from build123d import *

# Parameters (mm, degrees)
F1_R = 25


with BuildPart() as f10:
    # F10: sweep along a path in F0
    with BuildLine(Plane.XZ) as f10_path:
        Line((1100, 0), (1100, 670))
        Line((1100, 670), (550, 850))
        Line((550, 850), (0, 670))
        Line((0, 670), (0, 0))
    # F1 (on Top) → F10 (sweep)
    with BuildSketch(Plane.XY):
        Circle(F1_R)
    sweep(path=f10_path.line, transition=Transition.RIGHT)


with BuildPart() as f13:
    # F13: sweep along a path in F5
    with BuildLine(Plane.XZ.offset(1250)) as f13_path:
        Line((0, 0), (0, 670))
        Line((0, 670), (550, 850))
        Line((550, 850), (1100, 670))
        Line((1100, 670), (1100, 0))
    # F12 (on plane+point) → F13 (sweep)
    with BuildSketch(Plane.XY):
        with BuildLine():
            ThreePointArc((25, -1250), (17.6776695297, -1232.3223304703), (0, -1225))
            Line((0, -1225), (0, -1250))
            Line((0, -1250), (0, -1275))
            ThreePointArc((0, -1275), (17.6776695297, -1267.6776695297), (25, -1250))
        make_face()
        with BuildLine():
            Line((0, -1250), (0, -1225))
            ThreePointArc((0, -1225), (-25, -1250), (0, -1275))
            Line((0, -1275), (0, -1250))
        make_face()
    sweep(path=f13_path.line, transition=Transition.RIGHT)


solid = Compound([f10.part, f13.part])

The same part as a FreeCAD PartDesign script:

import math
import FreeCAD as App
import Part
import Sketcher

V = App.Vector
Q = App.Units.Quantity

doc = App.newDocument("Part")
params = doc.addObject("Spreadsheet::Sheet", "Params")
for row, (alias, value) in enumerate([
    ("sketch1_diameter", "50 mm"),
    ("sketch2_height", "670 mm"),
    ("sketch3_radius", "25 mm"),
    ("sketch4_height", "670 mm"),
], start=1):
    params.set(f"A{row}", alias)
    params.set(f"B{row}", "=" + value)
    params.setAlias(f"B{row}", alias)

body = doc.addObject("PartDesign::Body", "Body")

sketch1 = body.newObject("Sketcher::SketchObject", "Sketch")
sketch1.AttachmentSupport = (doc.getObject("XY_Plane"), [""])
sketch1.MapMode = "FlatFace"
sketch1.addGeometry(Part.Circle(V(0, 0, 0), V(0, 0, 1), 25), False)
sketch1.addConstraint(Sketcher.Constraint("Coincident", 0, 3, -1, 1))
sketch1.addConstraint(Sketcher.Constraint("Diameter", 0, Q("50 mm")))
sketch1.setExpression("Constraints[1]", "Params.sketch1_diameter")

sketch2 = body.newObject("Sketcher::SketchObject", "Sketch001")
sketch2.AttachmentSupport = (doc.getObject("XZ_Plane"), [""])
sketch2.MapMode = "FlatFace"
sketch2.addGeometry(Part.LineSegment(V(1100, 0, 0), V(1100, 670, 0)), False)
sketch2.addGeometry(Part.LineSegment(V(1100, 670, 0), V(550, 850, 0)), False)
sketch2.addGeometry(Part.LineSegment(V(550, 850, 0), V(0, 670, 0)), False)
sketch2.addGeometry(Part.LineSegment(V(0, 670, 0), V(0, 0, 0)), False)
sketch2.addConstraint(Sketcher.Constraint("Coincident", 0, 2, 1, 1))
sketch2.addConstraint(Sketcher.Constraint("Coincident", 1, 2, 2, 1))
sketch2.addConstraint(Sketcher.Constraint("Coincident", 2, 2, 3, 1))
sketch2.addConstraint(Sketcher.Constraint("Vertical", 0))
sketch2.addConstraint(Sketcher.Constraint("Vertical", 3))
sketch2.addConstraint(Sketcher.Constraint("Coincident", 3, 2, -1, 1))
sketch2.addConstraint(Sketcher.Constraint("PointOnObject", 0, 1, -1))
sketch2.addConstraint(Sketcher.Constraint("Horizontal", 0, 2, 2, 2))
sketch2.addConstraint(Sketcher.Constraint("Equal", 1, 2))
sketch2.addConstraint(Sketcher.Constraint("DistanceY", 0, 1, 0, 2, Q("670 mm")))
sketch2.addConstraint(Sketcher.Constraint("DistanceX", -1, 1, 0, 1, Q("1100 mm")))
sketch2.addConstraint(Sketcher.Constraint("DistanceY", -1, 1, 1, 2, Q("850 mm")))
sketch2.setExpression("Constraints[9]", "Params.sketch2_height")
doc.recompute()

additivepipe = body.newObject("PartDesign::AdditivePipe", "AdditivePipe")
additivepipe.Profile = sketch1
additivepipe.Spine = (sketch2, ["Edge1", "Edge2", "Edge3", "Edge4"])
additivepipe.Transition = "Right corner"
body2 = doc.addObject("PartDesign::Body", "Body001")

sketch3 = body2.newObject("Sketcher::SketchObject", "Sketch002")
sketch3.AttachmentSupport = (doc.getObject("XY_Plane001"), [""])
sketch3.MapMode = "FlatFace"
sketch3.addGeometry(Part.ArcOfCircle(Part.Circle(V(0, -1250, 0), V(0, 0, 1), 25), math.radians(0), math.radians(90)), False)
sketch3.addGeometry(Part.ArcOfCircle(Part.Circle(V(0, -1250, 0), V(0, 0, 1), 25), math.radians(90), math.radians(270)), False)
sketch3.addGeometry(Part.ArcOfCircle(Part.Circle(V(0, -1250, 0), V(0, 0, 1), 25), math.radians(-90), math.radians(0)), False)
sketch3.addConstraint(Sketcher.Constraint("Tangent", 0, 2, 1, 1))
sketch3.addConstraint(Sketcher.Constraint("Tangent", 1, 2, 2, 1))
sketch3.addConstraint(Sketcher.Constraint("Tangent", 2, 2, 0, 1))
sketch3.addConstraint(Sketcher.Constraint("PointOnObject", 0, 3, -2))
sketch3.addConstraint(Sketcher.Constraint("PointOnObject", 0, 2, -2))
sketch3.addConstraint(Sketcher.Constraint("PointOnObject", 1, 2, -2))
sketch3.addConstraint(Sketcher.Constraint("Horizontal", 1, 3, 2, 2))
sketch3.addConstraint(Sketcher.Constraint("Radius", 0, Q("25 mm")))
sketch3.addConstraint(Sketcher.Constraint("DistanceY", 0, 3, -1, 1, Q("1250 mm")))
sketch3.setExpression("Constraints[7]", "Params.sketch3_radius")

sketch4 = body2.newObject("Sketcher::SketchObject", "Sketch003")
sketch4.AttachmentSupport = (doc.getObject("XZ_Plane001"), [""])
sketch4.MapMode = "FlatFace"
sketch4.AttachmentOffset = App.Placement(V(0, 0, 1250), App.Rotation())
sketch4.addGeometry(Part.LineSegment(V(0, 0, 0), V(0, 670, 0)), False)
sketch4.addGeometry(Part.LineSegment(V(0, 670, 0), V(550, 850, 0)), False)
sketch4.addGeometry(Part.LineSegment(V(550, 850, 0), V(1100, 670, 0)), False)
sketch4.addGeometry(Part.LineSegment(V(1100, 670, 0), V(1100, 0, 0)), False)
sketch4.addConstraint(Sketcher.Constraint("Coincident", 0, 2, 1, 1))
sketch4.addConstraint(Sketcher.Constraint("Coincident", 1, 2, 2, 1))
sketch4.addConstraint(Sketcher.Constraint("Coincident", 2, 2, 3, 1))
sketch4.addConstraint(Sketcher.Constraint("Vertical", 0))
sketch4.addConstraint(Sketcher.Constraint("Vertical", 3))
sketch4.addConstraint(Sketcher.Constraint("Coincident", 0, 1, -1, 1))
sketch4.addConstraint(Sketcher.Constraint("PointOnObject", 3, 2, -1))
sketch4.addConstraint(Sketcher.Constraint("Horizontal", 0, 2, 2, 2))
sketch4.addConstraint(Sketcher.Constraint("Equal", 1, 2))
sketch4.addConstraint(Sketcher.Constraint("DistanceY", 0, 1, 0, 2, Q("670 mm")))
sketch4.addConstraint(Sketcher.Constraint("DistanceX", -1, 1, 1, 2, Q("550 mm")))
sketch4.addConstraint(Sketcher.Constraint("DistanceY", -1, 1, 1, 2, Q("850 mm")))
sketch4.setExpression("Constraints[9]", "Params.sketch4_height")
doc.recompute()

additivepipe2 = body2.newObject("PartDesign::AdditivePipe", "AdditivePipe001")
additivepipe2.Profile = sketch3
additivepipe2.Spine = (sketch4, ["Edge1", "Edge2", "Edge3", "Edge4"])
additivepipe2.Transition = "Right corner"

doc.recompute()
